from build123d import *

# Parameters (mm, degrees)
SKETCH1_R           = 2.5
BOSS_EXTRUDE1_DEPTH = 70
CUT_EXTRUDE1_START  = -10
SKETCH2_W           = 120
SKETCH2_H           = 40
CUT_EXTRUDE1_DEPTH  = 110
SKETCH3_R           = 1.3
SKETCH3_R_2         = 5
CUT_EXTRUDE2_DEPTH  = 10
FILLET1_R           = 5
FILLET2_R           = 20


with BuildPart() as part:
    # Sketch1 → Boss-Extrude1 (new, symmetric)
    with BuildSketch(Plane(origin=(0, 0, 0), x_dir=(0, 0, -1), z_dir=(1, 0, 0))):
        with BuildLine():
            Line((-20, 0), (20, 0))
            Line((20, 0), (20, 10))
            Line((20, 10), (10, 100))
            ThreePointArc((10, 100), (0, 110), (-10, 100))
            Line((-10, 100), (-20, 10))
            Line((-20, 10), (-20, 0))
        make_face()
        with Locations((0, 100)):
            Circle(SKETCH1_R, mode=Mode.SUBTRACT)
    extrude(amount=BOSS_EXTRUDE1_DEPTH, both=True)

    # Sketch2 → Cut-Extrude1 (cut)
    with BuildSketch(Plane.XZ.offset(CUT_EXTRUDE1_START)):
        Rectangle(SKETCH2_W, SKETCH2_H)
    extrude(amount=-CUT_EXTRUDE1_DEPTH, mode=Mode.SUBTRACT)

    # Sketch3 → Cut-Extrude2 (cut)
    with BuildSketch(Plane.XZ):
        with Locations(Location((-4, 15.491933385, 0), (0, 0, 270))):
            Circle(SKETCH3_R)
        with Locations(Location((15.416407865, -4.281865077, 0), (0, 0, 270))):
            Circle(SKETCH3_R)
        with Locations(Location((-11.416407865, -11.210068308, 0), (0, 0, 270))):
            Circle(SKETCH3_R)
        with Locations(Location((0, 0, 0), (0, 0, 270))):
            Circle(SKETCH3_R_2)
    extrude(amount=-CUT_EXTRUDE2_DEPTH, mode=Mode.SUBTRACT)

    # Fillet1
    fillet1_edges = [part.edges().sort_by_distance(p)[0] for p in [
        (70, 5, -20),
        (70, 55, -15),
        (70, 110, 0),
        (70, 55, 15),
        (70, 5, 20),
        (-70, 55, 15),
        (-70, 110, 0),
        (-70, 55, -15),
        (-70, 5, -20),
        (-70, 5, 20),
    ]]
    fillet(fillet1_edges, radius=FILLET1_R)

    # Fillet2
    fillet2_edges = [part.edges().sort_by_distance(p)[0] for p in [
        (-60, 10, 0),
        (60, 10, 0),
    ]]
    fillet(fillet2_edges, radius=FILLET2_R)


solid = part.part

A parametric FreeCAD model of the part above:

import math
import FreeCAD as App
import Part
import Sketcher
from FreeCAD import Vector
Q = App.Units.Quantity


def edges_at(feature, points):
    """Names of the edges that pass closest to the given points."""
    edges = feature.Shape.Edges
    near = lambda p: min(range(len(edges)), key=lambda i: edges[i].distToShape(Part.Vertex(*p))[0])
    return sorted({f"Edge{near(p) + 1}" for p in points})

doc = App.newDocument("Part")
body = doc.addObject("PartDesign::Body", "Body")

# Sketch on YZ plane
sketch1 = body.newObject("Sketcher::SketchObject", "Sketch")
sketch1.AttachmentSupport = (doc.getObject("YZ_Plane"), [""])
sketch1.MapMode = "FlatFace"
sketch1.addGeometry([
    Part.LineSegment(Vector(0, 20, 0), Vector(0, -20, 0)),  # 0
    Part.LineSegment(Vector(0, -20, 0), Vector(10, -20, 0)),  # 1
    Part.LineSegment(Vector(10, -20, 0), Vector(100, -10, 0)),  # 2
    Part.ArcOfCircle(Part.Circle(Vector(100, 0, 0), Vector(0, 0, 1), 10), math.radians(-90), math.radians(90)),  # 3
    Part.LineSegment(Vector(100, 10, 0), Vector(10, 20, 0)),  # 4
    Part.LineSegment(Vector(10, 20, 0), Vector(0, 20, 0)),  # 5
    Part.Circle(Vector(100, 0, 0), Vector(0, 0, 1), 2.5),  # 6
], False)
sketch1.addConstraint([
    Sketcher.Constraint("Coincident", 0, 2, 1, 1),
    Sketcher.Constraint("Coincident", 1, 2, 2, 1),
    Sketcher.Constraint("Coincident", 2, 2, 3, 1),
    Sketcher.Constraint("Coincident", 3, 2, 4, 1),
    Sketcher.Constraint("Coincident", 4, 2, 5, 1),
    Sketcher.Constraint("Coincident", 5, 2, 0, 1),
    Sketcher.Constraint("Vertical", 0),
    Sketcher.Constraint("Horizontal", 1),
    Sketcher.Constraint("Horizontal", 5),
    Sketcher.Constraint("Coincident", 6, 3, 3, 3),
    Sketcher.Constraint("Symmetric", 0, 2, 5, 2, -1, 1),
    Sketcher.Constraint("Symmetric", 2, 2, 3, 2, -1),
    Sketcher.Constraint("Vertical", 6, 3, 2, 2),
    Sketcher.Constraint("Vertical", 1, 2, 4, 2),
    Sketcher.Constraint("Diameter", 6, Q("5 mm")),
    Sketcher.Constraint("Radius", 3, Q("10 mm")),
    Sketcher.Constraint("DistanceX", 1, 1, 1, 2, Q("10 mm")),
    Sketcher.Constraint("DistanceY", 0, 2, 0, 1, Q("40 mm")),
    Sketcher.Constraint("DistanceX", -1, 1, 3, 3, Q("100 mm")),
])
pad1 = body.newObject("PartDesign::Pad", "Pad")
pad1.Profile = sketch1
pad1.Length = 140
pad1.Midplane = True

# Sketch on XZ plane
sketch2 = body.newObject("Sketcher::SketchObject", "Sketch001")
sketch2.AttachmentSupport = (doc.getObject("XZ_Plane"), [""])
sketch2.MapMode = "FlatFace"
sketch2.AttachmentOffset = App.Placement(Vector(0, 0, -10), App.Rotation())
sketch2.addGeometry([
    Part.LineSegment(Vector(-60, 20, 0), Vector(-60, -20, 0)),
    Part.LineSegment(Vector(-60, -20, 0), Vector(60, -20, 0)),
    Part.LineSegment(Vector(60, -20, 0), Vector(60, 20, 0)),
    Part.LineSegment(Vector(60, 20, 0), Vector(-60, 20, 0)),
], False)
sketch2.addConstraint([
    Sketcher.Constraint("Coincident", 0, 2, 1, 1),
    Sketcher.Constraint("Coincident", 1, 2, 2, 1),
    Sketcher.Constraint("Coincident", 2, 2, 3, 1),
    Sketcher.Constraint("Coincident", 3, 2, 0, 1),
    Sketcher.Constraint("Vertical", 0),
    Sketcher.Constraint("Horizontal", 1),
    Sketcher.Constraint("Vertical", 2),
    Sketcher.Constraint("Horizontal", 3),
    Sketcher.Constraint("Symmetric", 0, 2, 2, 2, -1, 1),
    Sketcher.Constraint("DistanceX", 1, 1, 1, 2, Q("120 mm")),
    Sketcher.Constraint("DistanceY", 0, 2, 0, 1, Q("40 mm")),
])
pocket1 = body.newObject("PartDesign::Pocket", "Pocket")
pocket1.Profile = sketch2
pocket1.Length = 110

# Sketch on XZ plane
sketch3 = body.newObject("Sketcher::SketchObject", "Sketch002")
sketch3.AttachmentSupport = (doc.getObject("XZ_Plane"), [""])
sketch3.MapMode = "FlatFace"
sketch3.addGeometry([
    Part.Circle(Vector(-4, 15.5, 0), Vector(0, 0, 1), 1.3),
    Part.Circle(Vector(15.4, -4.3, 0), Vector(0, 0, 1), 1.3),
    Part.Circle(Vector(-11.4, -11.2, 0), Vector(0, 0, 1), 1.3),
    Part.Circle(Vector(0, 0, 0), Vector(0, 0, 1), 5),
], False)
sketch3.addConstraint([
    Sketcher.Constraint("Coincident", 3, 3, -1, 1),
    Sketcher.Constraint("Equal", 0, 1),
    Sketcher.Constraint("Equal", 1, 2),
    Sketcher.Constraint("Diameter", 3, Q("10 mm")),
    Sketcher.Constraint("Diameter", 0, Q("2.6 mm")),
    Sketcher.Constraint("DistanceX", 0, 3, -1, 1, Q("4 mm")),
    Sketcher.Constraint("DistanceY", 2, 3, 0, 3, Q("26.702002 mm")),
    Sketcher.Constraint("DistanceY", 1, 3, 0, 3, Q("19.773798 mm")),
    Sketcher.Constraint("DistanceY", 2, 3, -1, 1, Q("11.210068 mm")),
    Sketcher.Constraint("DistanceX", -1, 1, 1, 3, Q("15.416408 mm")),
    Sketcher.Constraint("DistanceX", 2, 3, -1, 1, Q("11.416408 mm")),
])
pocket2 = body.newObject("PartDesign::Pocket", "Pocket001")
pocket2.Profile = sketch3
pocket2.Length = 10
doc.recompute()

fillet = body.newObject("PartDesign::Fillet", "Fillet")
fillet.Base = (pocket2, edges_at(pocket2, [
    (70, 5, -20),
    (70, 55, -15),
    (70, 110, 0),
    (70, 55, 15),
    (70, 5, 20),
    (-70, 55, 15),
    (-70, 110, 0),
    (-70, 55, -15),
    (-70, 5, -20),
    (-70, 5, 20),
]))
fillet.Radius = 5
doc.recompute()

fillet2 = body.newObject("PartDesign::Fillet", "Fillet001")
fillet2.Base = (fillet, edges_at(fillet, [(-60, 10, 0), (60, 10, 0)]))
fillet2.Radius = 20

doc.recompute()
